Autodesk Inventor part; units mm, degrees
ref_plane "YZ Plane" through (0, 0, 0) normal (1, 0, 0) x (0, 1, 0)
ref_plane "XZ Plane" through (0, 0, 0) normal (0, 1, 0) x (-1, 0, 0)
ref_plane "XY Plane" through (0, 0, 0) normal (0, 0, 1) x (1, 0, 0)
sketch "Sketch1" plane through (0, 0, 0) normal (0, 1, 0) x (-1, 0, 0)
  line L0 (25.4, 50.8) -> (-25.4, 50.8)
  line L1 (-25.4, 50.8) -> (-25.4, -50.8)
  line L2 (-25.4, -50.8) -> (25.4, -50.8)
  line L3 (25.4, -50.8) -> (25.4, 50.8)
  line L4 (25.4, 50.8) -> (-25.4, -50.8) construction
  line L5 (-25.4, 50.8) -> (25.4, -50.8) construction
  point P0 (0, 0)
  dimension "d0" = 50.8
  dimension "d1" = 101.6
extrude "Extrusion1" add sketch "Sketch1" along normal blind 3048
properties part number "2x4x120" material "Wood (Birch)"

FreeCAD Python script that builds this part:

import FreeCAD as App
import Part
import Sketcher

V = App.Vector
Q = App.Units.Quantity


def add_polygon(sketch, points):
    """Adds a closed chain of lines whose ends are joined by coincident constraints."""
    first, n = sketch.GeometryCount, len(points)
    for a, b in zip(points, points[1:] + points[:1]):
        sketch.addGeometry(Part.LineSegment(App.Vector(*a, 0), App.Vector(*b, 0)), False)
    for i in range(n):
        sketch.addConstraint(Sketcher.Constraint("Coincident", first + i, 2, first + (i + 1) % n, 1))

doc = App.newDocument("Part")
params = doc.addObject("Spreadsheet::Sheet", "Params")
for row, (alias, value) in enumerate([
    ("sketch1_width", "2 in"),
    ("sketch1_height", "4 in"),
    ("pad1_length", "120 in"),
], start=1):
    params.set(f"A{row}", alias)
    params.set(f"B{row}", "=" + value)
    params.setAlias(f"B{row}", alias)

body = doc.addObject("PartDesign::Body", "Body")

sketch1 = body.newObject("Sketcher::SketchObject", "Sketch")
sketch1.AttachmentSupport = (doc.getObject("XZ_Plane"), [""])
sketch1.MapMode = "FlatFace"
add_polygon(sketch1, [(-25.4, -50.8), (-25.4, 50.8), (25.4, 50.8), (25.4, -50.8)])
sketch1.addConstraint([
    Sketcher.Constraint("Vertical", 0),
    Sketcher.Constraint("Horizontal", 1),
    Sketcher.Constraint("Vertical", 2),
    Sketcher.Constraint("Horizontal", 3),
    Sketcher.Constraint("Symmetric", 0, 2, 2, 2, -1, 1),
    Sketcher.Constraint("DistanceX", 1, 1, 1, 2, Q("2 in")),
    Sketcher.Constraint("DistanceY", 0, 1, 0, 2, Q("4 in")),
])
sketch1.setExpression("Constraints[9]", "Params.sketch1_width")
sketch1.setExpression("Constraints[10]", "Params.sketch1_height")
pad1 = body.newObject("PartDesign::Pad", "Pad")
pad1.Profile = sketch1
pad1.setExpression("Length", "Params.pad1_length")
pad1.Reversed = True

doc.recompute()
